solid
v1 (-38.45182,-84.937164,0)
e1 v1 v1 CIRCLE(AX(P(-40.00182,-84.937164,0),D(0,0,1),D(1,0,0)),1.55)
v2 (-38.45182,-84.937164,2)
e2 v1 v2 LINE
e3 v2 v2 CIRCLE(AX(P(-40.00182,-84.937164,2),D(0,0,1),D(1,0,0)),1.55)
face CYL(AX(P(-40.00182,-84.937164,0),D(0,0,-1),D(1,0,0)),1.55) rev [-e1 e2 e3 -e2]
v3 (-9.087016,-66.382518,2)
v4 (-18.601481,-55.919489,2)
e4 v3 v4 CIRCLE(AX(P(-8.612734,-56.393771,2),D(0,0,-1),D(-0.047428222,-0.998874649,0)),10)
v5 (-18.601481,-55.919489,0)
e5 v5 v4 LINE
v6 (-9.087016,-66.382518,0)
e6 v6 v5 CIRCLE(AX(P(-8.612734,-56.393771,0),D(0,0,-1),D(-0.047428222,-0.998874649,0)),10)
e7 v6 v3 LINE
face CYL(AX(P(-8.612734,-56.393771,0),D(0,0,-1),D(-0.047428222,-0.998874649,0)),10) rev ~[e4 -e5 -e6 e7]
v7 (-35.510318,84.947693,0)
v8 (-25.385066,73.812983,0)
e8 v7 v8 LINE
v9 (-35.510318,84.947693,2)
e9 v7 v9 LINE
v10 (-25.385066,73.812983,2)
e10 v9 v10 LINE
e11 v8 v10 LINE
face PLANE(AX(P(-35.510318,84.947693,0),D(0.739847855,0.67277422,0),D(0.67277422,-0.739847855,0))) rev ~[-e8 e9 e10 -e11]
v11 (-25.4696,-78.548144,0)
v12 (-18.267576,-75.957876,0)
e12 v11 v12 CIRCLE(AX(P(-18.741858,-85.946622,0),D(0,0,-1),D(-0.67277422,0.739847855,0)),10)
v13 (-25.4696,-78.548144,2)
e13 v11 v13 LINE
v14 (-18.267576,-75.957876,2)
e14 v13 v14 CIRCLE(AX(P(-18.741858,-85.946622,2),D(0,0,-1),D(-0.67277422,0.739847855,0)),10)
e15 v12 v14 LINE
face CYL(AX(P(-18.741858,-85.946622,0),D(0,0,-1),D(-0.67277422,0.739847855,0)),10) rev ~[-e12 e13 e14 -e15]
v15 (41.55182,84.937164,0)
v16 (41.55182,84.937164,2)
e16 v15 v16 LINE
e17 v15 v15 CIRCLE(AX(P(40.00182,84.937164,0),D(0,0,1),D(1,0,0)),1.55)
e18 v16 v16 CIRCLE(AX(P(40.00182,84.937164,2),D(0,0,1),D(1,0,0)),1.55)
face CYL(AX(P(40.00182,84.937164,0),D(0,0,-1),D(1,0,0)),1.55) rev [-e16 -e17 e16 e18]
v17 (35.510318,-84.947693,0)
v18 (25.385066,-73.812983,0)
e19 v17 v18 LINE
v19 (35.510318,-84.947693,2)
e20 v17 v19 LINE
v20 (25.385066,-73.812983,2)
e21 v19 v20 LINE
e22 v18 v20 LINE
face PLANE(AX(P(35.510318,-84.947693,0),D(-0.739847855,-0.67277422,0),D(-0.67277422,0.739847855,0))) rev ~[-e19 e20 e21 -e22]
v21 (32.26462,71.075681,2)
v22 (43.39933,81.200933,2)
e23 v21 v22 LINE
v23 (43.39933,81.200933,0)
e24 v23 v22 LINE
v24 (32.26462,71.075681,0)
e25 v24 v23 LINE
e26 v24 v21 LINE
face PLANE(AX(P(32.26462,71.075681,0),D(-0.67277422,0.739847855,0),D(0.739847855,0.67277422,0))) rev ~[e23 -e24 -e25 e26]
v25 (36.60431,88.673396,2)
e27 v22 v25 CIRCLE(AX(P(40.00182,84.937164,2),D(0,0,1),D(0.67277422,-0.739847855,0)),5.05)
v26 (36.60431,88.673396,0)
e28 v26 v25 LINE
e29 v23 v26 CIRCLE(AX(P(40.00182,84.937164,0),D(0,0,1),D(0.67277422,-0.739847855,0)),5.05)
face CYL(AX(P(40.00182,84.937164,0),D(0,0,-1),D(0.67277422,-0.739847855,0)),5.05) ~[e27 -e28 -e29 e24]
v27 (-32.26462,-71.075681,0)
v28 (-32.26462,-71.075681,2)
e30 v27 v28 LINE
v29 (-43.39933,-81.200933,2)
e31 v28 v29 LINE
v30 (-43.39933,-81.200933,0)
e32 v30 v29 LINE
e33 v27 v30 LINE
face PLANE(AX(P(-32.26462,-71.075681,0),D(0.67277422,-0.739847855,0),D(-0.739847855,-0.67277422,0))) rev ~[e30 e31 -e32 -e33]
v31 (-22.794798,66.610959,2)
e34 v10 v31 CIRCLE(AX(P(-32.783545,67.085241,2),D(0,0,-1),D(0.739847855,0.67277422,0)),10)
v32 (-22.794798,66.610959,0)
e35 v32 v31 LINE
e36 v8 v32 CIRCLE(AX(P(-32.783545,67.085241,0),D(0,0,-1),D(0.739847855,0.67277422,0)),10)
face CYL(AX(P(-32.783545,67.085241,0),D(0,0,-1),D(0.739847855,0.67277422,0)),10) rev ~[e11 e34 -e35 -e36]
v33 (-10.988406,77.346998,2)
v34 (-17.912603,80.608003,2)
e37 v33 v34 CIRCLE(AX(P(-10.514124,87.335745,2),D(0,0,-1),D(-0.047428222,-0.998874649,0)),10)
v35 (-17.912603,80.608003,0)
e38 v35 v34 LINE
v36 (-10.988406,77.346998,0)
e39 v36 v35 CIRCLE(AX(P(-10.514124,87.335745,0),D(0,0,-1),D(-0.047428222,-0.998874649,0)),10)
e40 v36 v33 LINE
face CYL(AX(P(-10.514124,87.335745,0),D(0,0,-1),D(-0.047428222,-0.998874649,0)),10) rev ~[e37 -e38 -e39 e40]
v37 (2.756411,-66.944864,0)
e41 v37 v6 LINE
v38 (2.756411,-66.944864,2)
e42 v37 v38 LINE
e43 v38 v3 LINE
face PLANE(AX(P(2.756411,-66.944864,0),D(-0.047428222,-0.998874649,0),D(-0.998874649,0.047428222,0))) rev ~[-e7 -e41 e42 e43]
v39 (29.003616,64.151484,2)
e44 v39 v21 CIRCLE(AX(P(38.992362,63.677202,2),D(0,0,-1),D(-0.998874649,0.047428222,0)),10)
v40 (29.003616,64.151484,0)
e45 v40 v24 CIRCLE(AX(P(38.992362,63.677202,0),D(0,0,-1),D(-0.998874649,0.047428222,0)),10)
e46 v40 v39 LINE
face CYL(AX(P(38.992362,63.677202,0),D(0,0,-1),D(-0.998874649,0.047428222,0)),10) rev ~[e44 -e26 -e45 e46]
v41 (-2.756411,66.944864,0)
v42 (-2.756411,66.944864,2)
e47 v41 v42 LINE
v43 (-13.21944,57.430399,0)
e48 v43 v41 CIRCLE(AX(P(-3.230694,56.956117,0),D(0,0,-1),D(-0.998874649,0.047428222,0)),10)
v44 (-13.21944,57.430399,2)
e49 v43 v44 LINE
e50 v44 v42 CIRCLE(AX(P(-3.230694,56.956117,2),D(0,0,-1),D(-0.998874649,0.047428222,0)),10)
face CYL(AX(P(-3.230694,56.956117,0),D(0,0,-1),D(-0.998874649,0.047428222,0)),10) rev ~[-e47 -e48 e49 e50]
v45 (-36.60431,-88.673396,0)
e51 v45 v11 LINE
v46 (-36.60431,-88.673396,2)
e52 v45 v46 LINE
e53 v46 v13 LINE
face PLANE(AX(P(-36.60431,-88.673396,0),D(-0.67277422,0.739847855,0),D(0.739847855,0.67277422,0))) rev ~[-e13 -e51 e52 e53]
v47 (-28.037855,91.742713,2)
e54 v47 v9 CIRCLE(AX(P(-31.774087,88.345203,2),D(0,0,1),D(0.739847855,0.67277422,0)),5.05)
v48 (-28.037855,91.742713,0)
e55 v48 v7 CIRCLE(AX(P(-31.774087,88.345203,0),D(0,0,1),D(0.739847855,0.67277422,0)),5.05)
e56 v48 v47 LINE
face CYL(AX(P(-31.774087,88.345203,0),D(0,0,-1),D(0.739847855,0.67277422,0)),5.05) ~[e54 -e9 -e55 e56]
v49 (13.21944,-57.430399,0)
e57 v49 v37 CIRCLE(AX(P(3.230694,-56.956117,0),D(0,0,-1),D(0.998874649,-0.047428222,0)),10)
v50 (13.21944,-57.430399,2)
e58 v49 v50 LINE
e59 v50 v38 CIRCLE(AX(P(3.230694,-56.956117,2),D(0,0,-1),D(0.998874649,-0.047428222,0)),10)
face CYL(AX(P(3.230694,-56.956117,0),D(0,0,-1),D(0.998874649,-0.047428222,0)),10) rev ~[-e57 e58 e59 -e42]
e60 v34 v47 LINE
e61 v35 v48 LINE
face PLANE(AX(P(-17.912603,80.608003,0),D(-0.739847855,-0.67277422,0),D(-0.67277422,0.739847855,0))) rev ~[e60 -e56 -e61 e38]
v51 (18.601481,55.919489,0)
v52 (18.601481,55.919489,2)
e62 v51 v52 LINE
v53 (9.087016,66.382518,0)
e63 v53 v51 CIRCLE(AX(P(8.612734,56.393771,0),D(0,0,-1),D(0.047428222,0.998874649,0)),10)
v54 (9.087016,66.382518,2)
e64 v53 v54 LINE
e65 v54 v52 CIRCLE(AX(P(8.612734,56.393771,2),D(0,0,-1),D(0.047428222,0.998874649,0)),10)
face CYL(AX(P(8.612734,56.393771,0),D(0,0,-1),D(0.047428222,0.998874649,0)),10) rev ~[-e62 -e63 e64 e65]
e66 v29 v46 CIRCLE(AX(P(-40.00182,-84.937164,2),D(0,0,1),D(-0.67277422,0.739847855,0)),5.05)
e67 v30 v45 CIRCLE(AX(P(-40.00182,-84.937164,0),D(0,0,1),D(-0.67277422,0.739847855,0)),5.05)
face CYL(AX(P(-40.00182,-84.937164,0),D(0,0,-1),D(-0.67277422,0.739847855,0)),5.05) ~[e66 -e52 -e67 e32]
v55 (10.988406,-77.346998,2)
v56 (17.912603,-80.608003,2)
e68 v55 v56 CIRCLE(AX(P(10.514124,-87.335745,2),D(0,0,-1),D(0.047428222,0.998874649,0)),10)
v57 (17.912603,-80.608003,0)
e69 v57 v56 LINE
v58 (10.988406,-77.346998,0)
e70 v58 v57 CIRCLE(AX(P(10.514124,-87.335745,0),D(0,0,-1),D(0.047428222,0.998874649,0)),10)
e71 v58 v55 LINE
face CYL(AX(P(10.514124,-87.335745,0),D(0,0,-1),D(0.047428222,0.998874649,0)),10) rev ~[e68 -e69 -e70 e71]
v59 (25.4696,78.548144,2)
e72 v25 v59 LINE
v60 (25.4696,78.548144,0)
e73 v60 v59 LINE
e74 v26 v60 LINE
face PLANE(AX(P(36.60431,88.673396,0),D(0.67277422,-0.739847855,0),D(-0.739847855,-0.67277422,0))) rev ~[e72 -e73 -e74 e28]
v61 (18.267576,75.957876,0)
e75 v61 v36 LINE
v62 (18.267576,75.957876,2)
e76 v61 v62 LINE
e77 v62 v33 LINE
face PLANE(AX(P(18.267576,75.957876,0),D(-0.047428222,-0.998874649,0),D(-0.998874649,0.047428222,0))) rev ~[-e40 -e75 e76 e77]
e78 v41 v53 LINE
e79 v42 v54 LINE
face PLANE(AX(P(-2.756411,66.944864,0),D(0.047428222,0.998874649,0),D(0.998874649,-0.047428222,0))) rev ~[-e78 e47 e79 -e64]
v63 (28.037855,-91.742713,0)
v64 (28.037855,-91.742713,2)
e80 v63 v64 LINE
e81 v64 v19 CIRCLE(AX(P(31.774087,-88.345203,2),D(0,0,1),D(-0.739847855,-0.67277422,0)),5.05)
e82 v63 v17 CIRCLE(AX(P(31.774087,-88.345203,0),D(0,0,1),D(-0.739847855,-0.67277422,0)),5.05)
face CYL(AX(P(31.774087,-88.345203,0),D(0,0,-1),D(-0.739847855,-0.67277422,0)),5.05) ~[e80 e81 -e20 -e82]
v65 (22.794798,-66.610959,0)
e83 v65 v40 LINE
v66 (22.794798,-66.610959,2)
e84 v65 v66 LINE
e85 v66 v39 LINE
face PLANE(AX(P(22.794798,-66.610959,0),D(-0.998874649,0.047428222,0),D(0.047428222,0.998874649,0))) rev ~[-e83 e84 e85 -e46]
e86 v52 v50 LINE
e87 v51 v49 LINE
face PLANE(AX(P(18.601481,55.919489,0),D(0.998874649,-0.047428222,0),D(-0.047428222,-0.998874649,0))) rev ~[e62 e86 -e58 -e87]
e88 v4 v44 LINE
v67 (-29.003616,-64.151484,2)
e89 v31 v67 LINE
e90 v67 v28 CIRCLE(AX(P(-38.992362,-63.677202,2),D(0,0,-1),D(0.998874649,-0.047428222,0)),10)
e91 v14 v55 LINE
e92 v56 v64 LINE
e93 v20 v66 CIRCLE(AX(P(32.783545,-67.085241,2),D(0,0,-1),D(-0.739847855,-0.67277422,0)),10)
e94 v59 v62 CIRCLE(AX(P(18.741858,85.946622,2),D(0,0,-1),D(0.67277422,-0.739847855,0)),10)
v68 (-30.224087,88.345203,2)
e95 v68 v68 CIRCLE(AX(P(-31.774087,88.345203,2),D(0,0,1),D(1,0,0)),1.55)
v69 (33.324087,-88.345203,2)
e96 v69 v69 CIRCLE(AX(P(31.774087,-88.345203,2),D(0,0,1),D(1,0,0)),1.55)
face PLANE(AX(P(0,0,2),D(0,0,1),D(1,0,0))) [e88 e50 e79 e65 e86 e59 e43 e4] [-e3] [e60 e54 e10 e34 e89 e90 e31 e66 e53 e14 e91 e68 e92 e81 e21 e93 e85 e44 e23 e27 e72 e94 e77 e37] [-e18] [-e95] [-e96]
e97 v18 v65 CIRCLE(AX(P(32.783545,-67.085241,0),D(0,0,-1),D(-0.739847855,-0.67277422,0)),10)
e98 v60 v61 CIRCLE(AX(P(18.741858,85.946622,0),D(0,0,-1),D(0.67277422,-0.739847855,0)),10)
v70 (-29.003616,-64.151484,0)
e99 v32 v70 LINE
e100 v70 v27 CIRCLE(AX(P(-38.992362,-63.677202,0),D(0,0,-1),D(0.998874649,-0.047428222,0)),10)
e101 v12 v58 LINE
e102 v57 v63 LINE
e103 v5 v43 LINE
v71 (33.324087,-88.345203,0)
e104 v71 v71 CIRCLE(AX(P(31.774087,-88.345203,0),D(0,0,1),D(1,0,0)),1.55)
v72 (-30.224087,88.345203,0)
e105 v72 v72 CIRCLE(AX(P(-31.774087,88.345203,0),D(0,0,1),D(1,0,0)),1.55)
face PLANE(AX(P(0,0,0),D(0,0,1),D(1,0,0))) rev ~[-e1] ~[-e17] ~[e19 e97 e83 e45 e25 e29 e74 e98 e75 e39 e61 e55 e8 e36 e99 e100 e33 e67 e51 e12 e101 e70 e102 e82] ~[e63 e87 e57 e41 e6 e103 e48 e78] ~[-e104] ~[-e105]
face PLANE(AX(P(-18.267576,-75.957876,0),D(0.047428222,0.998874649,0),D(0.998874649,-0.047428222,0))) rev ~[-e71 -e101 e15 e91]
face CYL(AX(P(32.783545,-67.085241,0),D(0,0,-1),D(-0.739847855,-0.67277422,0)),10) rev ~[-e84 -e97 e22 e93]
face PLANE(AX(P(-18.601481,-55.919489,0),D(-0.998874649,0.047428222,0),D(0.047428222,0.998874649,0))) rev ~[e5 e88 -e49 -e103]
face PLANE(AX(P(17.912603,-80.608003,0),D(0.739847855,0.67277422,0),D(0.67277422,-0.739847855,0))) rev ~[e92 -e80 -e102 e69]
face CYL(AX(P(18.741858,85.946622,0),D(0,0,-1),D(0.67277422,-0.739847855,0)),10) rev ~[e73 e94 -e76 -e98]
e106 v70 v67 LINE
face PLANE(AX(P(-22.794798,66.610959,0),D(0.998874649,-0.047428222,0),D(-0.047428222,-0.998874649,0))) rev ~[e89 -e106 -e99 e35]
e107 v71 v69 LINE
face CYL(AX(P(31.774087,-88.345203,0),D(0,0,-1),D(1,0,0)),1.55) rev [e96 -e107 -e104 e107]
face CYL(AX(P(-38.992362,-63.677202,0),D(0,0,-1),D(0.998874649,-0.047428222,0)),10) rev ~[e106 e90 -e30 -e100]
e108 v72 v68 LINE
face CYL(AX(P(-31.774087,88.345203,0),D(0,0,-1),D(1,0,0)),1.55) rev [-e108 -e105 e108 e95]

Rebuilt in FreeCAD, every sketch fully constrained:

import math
import FreeCAD as App
import Part
import Sketcher
from FreeCAD import Vector

doc = App.newDocument("Part")
body = doc.addObject("PartDesign::Body", "Body")

# Sketch on XY plane
sketch1 = body.newObject("Sketcher::SketchObject", "Sketch")
sketch1.AttachmentSupport = (doc.getObject("XY_Plane"), [""])
sketch1.MapMode = "FlatFace"
sketch1.addGeometry([
    Part.ArcOfCircle(Part.Circle(Vector(32.8, -67.1, 0), Vector(0, 0, 1), 10), math.radians(177), math.radians(222)),  # 0
    Part.LineSegment(Vector(22.8, -66.6, 0), Vector(29, 64.2, 0)),  # 1
    Part.ArcOfCircle(Part.Circle(Vector(39, 63.7, 0), Vector(0, 0, 1), 10), math.radians(132), math.radians(177)),  # 2
    Part.LineSegment(Vector(32.3, 71.1, 0), Vector(43.4, 81.2, 0)),  # 3
    Part.ArcOfCircle(Part.Circle(Vector(40, 84.9, 0), Vector(0, 0, 1), 5), math.radians(-48), math.radians(132)),  # 4
    Part.LineSegment(Vector(36.6, 88.7, 0), Vector(25.5, 78.5, 0)),  # 5
    Part.ArcOfCircle(Part.Circle(Vector(18.7, 85.9, 0), Vector(0, 0, 1), 10), math.radians(-93), math.radians(-48)),  # 6
    Part.LineSegment(Vector(18.3, 76, 0), Vector(-11, 77.3, 0)),  # 7
    Part.ArcOfCircle(Part.Circle(Vector(-10.5, 87.3, 0), Vector(0, 0, 1), 10), math.radians(-138), math.radians(-93)),  # 8
    Part.LineSegment(Vector(-17.9, 80.6, 0), Vector(-28, 91.7, 0)),  # 9
    Part.ArcOfCircle(Part.Circle(Vector(-31.8, 88.3, 0), Vector(0, 0, 1), 5), math.radians(42), math.radians(222)),  # 10
    Part.LineSegment(Vector(-35.5, 84.9, 0), Vector(-25.4, 73.8, 0)),  # 11
    Part.ArcOfCircle(Part.Circle(Vector(-32.8, 67.1, 0), Vector(0, 0, 1), 10), math.radians(-3), math.radians(42)),  # 12
    Part.LineSegment(Vector(-22.8, 66.6, 0), Vector(-29, -64.2, 0)),  # 13
    Part.ArcOfCircle(Part.Circle(Vector(-39, -63.7, 0), Vector(0, 0, 1), 10), math.radians(-48), math.radians(-3)),  # 14
    Part.LineSegment(Vector(-32.3, -71.1, 0), Vector(-43.4, -81.2, 0)),  # 15
    Part.ArcOfCircle(Part.Circle(Vector(-40, -84.9, 0), Vector(0, 0, 1), 5), math.radians(132), math.radians(312)),  # 16
    Part.LineSegment(Vector(-36.6, -88.7, 0), Vector(-25.5, -78.5, 0)),  # 17
    Part.ArcOfCircle(Part.Circle(Vector(-18.7, -85.9, 0), Vector(0, 0, 1), 10), math.radians(87), math.radians(132)),  # 18
    Part.LineSegment(Vector(-18.3, -76, 0), Vector(11, -77.3, 0)),  # 19
    Part.ArcOfCircle(Part.Circle(Vector(10.5, -87.3, 0), Vector(0, 0, 1), 10), math.radians(42), math.radians(87)),  # 20
    Part.LineSegment(Vector(17.9, -80.6, 0), Vector(28, -91.7, 0)),  # 21
    Part.ArcOfCircle(Part.Circle(Vector(31.8, -88.3, 0), Vector(0, 0, 1), 5), math.radians(-138), math.radians(42)),  # 22
    Part.LineSegment(Vector(35.5, -84.9, 0), Vector(25.4, -73.8, 0)),  # 23
    Part.Circle(Vector(-40, -84.9, 0), Vector(0, 0, 1), 1.6),  # 24
    Part.Circle(Vector(31.8, -88.3, 0), Vector(0, 0, 1), 1.6),  # 25
    Part.Circle(Vector(-31.8, 88.3, 0), Vector(0, 0, 1), 1.6),  # 26
    Part.LineSegment(Vector(2.8, -66.9, 0), Vector(-9.1, -66.4, 0)),  # 27
    Part.ArcOfCircle(Part.Circle(Vector(-8.6, -56.4, 0), Vector(0, 0, 1), 10), math.radians(177), math.radians(267)),  # 28
    Part.LineSegment(Vector(-18.6, -55.9, 0), Vector(-13.2, 57.4, 0)),  # 29
    Part.ArcOfCircle(Part.Circle(Vector(-3.2, 57, 0), Vector(0, 0, 1), 10), math.radians(87), math.radians(177)),  # 30
    Part.LineSegment(Vector(-2.8, 66.9, 0), Vector(9.1, 66.4, 0)),  # 31
    Part.ArcOfCircle(Part.Circle(Vector(8.6, 56.4, 0), Vector(0, 0, 1), 10), math.radians(-3), math.radians(87)),  # 32
    Part.LineSegment(Vector(18.6, 55.9, 0), Vector(13.2, -57.4, 0)),  # 33
    Part.ArcOfCircle(Part.Circle(Vector(3.2, -57, 0), Vector(0, 0, 1), 10), math.radians(-93), math.radians(-3)),  # 34
    Part.Circle(Vector(40, 84.9, 0), Vector(0, 0, 1), 1.6),  # 35
], False)
sketch1.addConstraint([
    Sketcher.Constraint("Tangent", 0, 1, 1, 1),
    Sketcher.Constraint("Tangent", 1, 2, 2, 2),
    Sketcher.Constraint("Tangent", 2, 1, 3, 1),
    Sketcher.Constraint("Tangent", 3, 2, 4, 1),
    Sketcher.Constraint("Tangent", 4, 2, 5, 1),
    Sketcher.Constraint("Tangent", 5, 2, 6, 2),
    Sketcher.Constraint("Tangent", 6, 1, 7, 1),
    Sketcher.Constraint("Tangent", 7, 2, 8, 2),
    Sketcher.Constraint("Tangent", 8, 1, 9, 1),
    Sketcher.Constraint("Tangent", 9, 2, 10, 1),
    Sketcher.Constraint("Tangent", 10, 2, 11, 1),
    Sketcher.Constraint("Tangent", 11, 2, 12, 2),
    Sketcher.Constraint("Tangent", 12, 1, 13, 1),
    Sketcher.Constraint("Tangent", 13, 2, 14, 2),
    Sketcher.Constraint("Tangent", 14, 1, 15, 1),
    Sketcher.Constraint("Tangent", 15, 2, 16, 1),
    Sketcher.Constraint("Tangent", 16, 2, 17, 1),
    Sketcher.Constraint("Tangent", 17, 2, 18, 2),
    Sketcher.Constraint("Tangent", 18, 1, 19, 1),
    Sketcher.Constraint("Tangent", 19, 2, 20, 2),
    Sketcher.Constraint("Tangent", 20, 1, 21, 1),
    Sketcher.Constraint("Tangent", 21, 2, 22, 1),
    Sketcher.Constraint("Tangent", 22, 2, 23, 1),
    Sketcher.Constraint("Tangent", 23, 2, 0, 2),
    Sketcher.Constraint("Tangent", 27, 2, 28, 2),
    Sketcher.Constraint("Tangent", 28, 1, 29, 1),
    Sketcher.Constraint("Tangent", 29, 2, 30, 2),
    Sketcher.Constraint("Tangent", 30, 1, 31, 1),
    Sketcher.Constraint("Tangent", 31, 2, 32, 2),
    Sketcher.Constraint("Tangent", 32, 1, 33, 1),
    Sketcher.Constraint("Tangent", 33, 2, 34, 2),
    Sketcher.Constraint("Tangent", 34, 1, 27, 1),
    Sketcher.Constraint("Coincident", 24, 3, 16, 3),
    Sketcher.Constraint("Coincident", 25, 3, 22, 3),
    Sketcher.Constraint("Coincident", 26, 3, 10, 3),
    Sketcher.Constraint("Coincident", 35, 3, 4, 3),
    Sketcher.Constraint("Equal", 0, 2),
    Sketcher.Constraint("Equal", 2, 6),
    Sketcher.Constraint("Equal", 6, 8),
    Sketcher.Constraint("Equal", 4, 10),
    Sketcher.Constraint("Equal", 8, 12),
    Sketcher.Constraint("Equal", 12, 14),
    Sketcher.Constraint("Equal", 10, 16),
    Sketcher.Constraint("Equal", 14, 18),
    Sketcher.Constraint("Equal", 18, 20),
    Sketcher.Constraint("Equal", 16, 22),
    Sketcher.Constraint("Equal", 24, 25),
    Sketcher.Constraint("Equal", 25, 26),
    Sketcher.Constraint("Equal", 20, 28),
    Sketcher.Constraint("Equal", 28, 30),
    Sketcher.Constraint("Equal", 30, 32),
    Sketcher.Constraint("Equal", 32, 34),
    Sketcher.Constraint("Equal", 26, 35),
    Sketcher.Constraint("Symmetric", 0, 3, 12, 3, -1, 1),
    Sketcher.Constraint("Symmetric", 2, 3, 14, 3, -1, 1),
    Sketcher.Constraint("Symmetric", 4, 3, 16, 3, -1, 1),
    Sketcher.Constraint("Symmetric", 6, 3, 18, 3, -1, 1),
    Sketcher.Constraint("Symmetric", 8, 3, 20, 3, -1, 1),
    Sketcher.Constraint("Symmetric", 10, 3, 22, 3, -1, 1),
    Sketcher.Constraint("Symmetric", 28, 3, 32, 3, -1, 1),
    Sketcher.Constraint("Symmetric", 30, 3, 34, 3, -1, 1),
    Sketcher.Constraint("Parallel", 3, 5),
    Sketcher.Constraint("Perpendicular", 1, 7),
    Sketcher.Constraint("Perpendicular", 5, 9),
    Sketcher.Constraint("Parallel", 9, 11),
    Sketcher.Constraint("Parallel", 19, 27),
    Sketcher.Constraint("Perpendicular", 27, 29),
    Sketcher.Constraint("Equal", 3, 5),
    Sketcher.Constraint("Equal", 5, 9),
    Sketcher.Constraint("Equal", 9, 11),
    Sketcher.Constraint("Radius", 0, 10.0),
    Sketcher.Constraint("Diameter", 24, 3.1),
    Sketcher.Constraint("Radius", 4, 5.05),
    Sketcher.Constraint("Distance", 3, 15.05),
    Sketcher.Constraint("DistanceY", -1, 1, 7, 2, 77.346998),
    Sketcher.Constraint("DistanceY", 2, 3, 10, 3, 24.668001),
    Sketcher.Constraint("DistanceX", -1, 1, 0, 1, 22.794798),
    Sketcher.Constraint("DistanceX", -1, 1, 5, 2, 25.4696),
    Sketcher.Constraint("DistanceY", -1, 1, 29, 2, 57.430399),
    Sketcher.Constraint("DistanceY", 27, 2, 34, 3, 9.426401),
])
pad1 = body.newObject("PartDesign::Pad", "Pad")
pad1.Profile = sketch1
pad1.Length = 2

doc.recompute()
